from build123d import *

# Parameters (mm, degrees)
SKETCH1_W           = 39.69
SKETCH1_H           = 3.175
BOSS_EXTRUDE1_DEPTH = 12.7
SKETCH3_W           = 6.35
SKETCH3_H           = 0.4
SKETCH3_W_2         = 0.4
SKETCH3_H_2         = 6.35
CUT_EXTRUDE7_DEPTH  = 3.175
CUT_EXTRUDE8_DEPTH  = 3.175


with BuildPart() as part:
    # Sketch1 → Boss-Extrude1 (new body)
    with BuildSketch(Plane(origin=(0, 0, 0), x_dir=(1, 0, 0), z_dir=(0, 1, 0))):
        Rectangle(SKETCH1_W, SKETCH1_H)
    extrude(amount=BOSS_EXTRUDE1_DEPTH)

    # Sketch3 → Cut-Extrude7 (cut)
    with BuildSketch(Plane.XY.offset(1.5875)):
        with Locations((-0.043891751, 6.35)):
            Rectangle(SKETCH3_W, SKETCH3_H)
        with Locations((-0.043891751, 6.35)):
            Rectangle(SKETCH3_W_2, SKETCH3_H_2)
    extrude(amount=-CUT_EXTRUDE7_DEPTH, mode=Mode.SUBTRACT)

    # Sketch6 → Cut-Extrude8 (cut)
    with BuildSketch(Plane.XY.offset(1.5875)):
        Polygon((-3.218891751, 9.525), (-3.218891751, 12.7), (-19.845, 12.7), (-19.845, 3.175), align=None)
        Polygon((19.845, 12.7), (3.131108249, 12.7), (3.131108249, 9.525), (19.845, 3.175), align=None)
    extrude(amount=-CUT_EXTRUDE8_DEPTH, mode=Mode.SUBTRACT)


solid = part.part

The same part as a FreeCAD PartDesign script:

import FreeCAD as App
import Part
import Sketcher

V = App.Vector
Q = App.Units.Quantity


def add_polygon(sketch, points):
    """Adds a closed chain of lines whose ends are joined by coincident constraints."""
    first, n = sketch.GeometryCount, len(points)
    for a, b in zip(points, points[1:] + points[:1]):
        sketch.addGeometry(Part.LineSegment(App.Vector(*a, 0), App.Vector(*b, 0)), False)
    for i in range(n):
        sketch.addConstraint(Sketcher.Constraint("Coincident", first + i, 2, first + (i + 1) % n, 1))

doc = App.newDocument("Part")
body = doc.addObject("PartDesign::Body", "Body")

# Sketch on XZ plane
sketch1 = body.newObject("Sketcher::SketchObject", "Sketch")
sketch1.AttachmentSupport = (doc.getObject("XZ_Plane"), [""])
sketch1.MapMode = "FlatFace"
add_polygon(sketch1, [(-19.845, -1.5875), (-19.845, 1.5875), (19.845, 1.5875), (19.845, -1.5875)])  # lines 0-3
sketch1.addConstraint([
    Sketcher.Constraint("Vertical", 0),
    Sketcher.Constraint("Horizontal", 1),
    Sketcher.Constraint("Vertical", 2),
    Sketcher.Constraint("Horizontal", 3),
    Sketcher.Constraint("Symmetric", 0, 2, 2, 2, -1, 1),
    Sketcher.Constraint("DistanceY", 0, 1, 0, 2, Q("0.125 in")),
    Sketcher.Constraint("DistanceX", 1, 1, 1, 2, Q("39.69 mm")),
])
pad1 = body.newObject("PartDesign::Pad", "Pad")
pad1.Profile = sketch1
pad1.Length = Q("0.5 in")
pad1.Reversed = True

# Sketch on XY plane
sketch2 = body.newObject("Sketcher::SketchObject", "Sketch001")
sketch2.AttachmentSupport = (doc.getObject("XY_Plane"), [""])
sketch2.MapMode = "FlatFace"
sketch2.AttachmentOffset = App.Placement(V(0, 0, 0.0625 * 25.4), App.Rotation())
add_polygon(sketch2, [(-3.218892, 6.55), (-3.218892, 6.15), (-0.243892, 6.15), (-0.243892, 3.175), (0.156108, 3.175), (0.156108, 6.15), (3.131108, 6.15), (3.131108, 6.55), (0.156108, 6.55), (0.156108, 9.525), (-0.243892, 9.525), (-0.243892, 6.55)])  # lines 0-11
sketch2.addConstraint([
    Sketcher.Constraint("Vertical", 0),
    Sketcher.Constraint("Horizontal", 1),
    Sketcher.Constraint("Vertical", 2),
    Sketcher.Constraint("Horizontal", 3),
    Sketcher.Constraint("Vertical", 4),
    Sketcher.Constraint("Horizontal", 5),
    Sketcher.Constraint("Vertical", 6),
    Sketcher.Constraint("Horizontal", 7),
    Sketcher.Constraint("Vertical", 8),
    Sketcher.Constraint("Horizontal", 9),
    Sketcher.Constraint("Vertical", 10),
    Sketcher.Constraint("Horizontal", 11),
    Sketcher.Constraint("Horizontal", 1, 2, 4, 2),
    Sketcher.Constraint("Horizontal", 7, 2, 10, 2),
    Sketcher.Constraint("Vertical", 4, 2, 7, 2),
    Sketcher.Constraint("Vertical", 2, 2, 9, 2),
    Sketcher.Constraint("Equal", 1, 5),
    Sketcher.Constraint("Equal", 9, 0),
    Sketcher.Constraint("Equal", 11, 2),
    Sketcher.Constraint("Equal", 4, 8),
    Sketcher.Constraint("DistanceX", 0, 2, 5, 2, Q("0.25 in")),
    Sketcher.Constraint("DistanceY", -1, 1, 2, 2, Q("0.125 in")),
    Sketcher.Constraint("DistanceX", 1, 1, 1, 2, Q("2.975 mm")),
    Sketcher.Constraint("DistanceX", 0, 2, -1, 1, Q("3.218892 mm")),
])
pocket1 = body.newObject("PartDesign::Pocket", "Pocket")
pocket1.Profile = sketch2
pocket1.Length = Q("0.125 in")

# Sketch on XY plane
sketch3 = body.newObject("Sketcher::SketchObject", "Sketch002")
sketch3.AttachmentSupport = (doc.getObject("XY_Plane"), [""])
sketch3.MapMode = "FlatFace"
sketch3.AttachmentOffset = App.Placement(V(0, 0, 0.0625 * 25.4), App.Rotation())
add_polygon(sketch3, [(-3.218892, 9.525), (-3.218892, 12.7), (-19.845, 12.7), (-19.845, 3.175)])  # lines 0-3
add_polygon(sketch3, [(19.845, 12.7), (3.131108, 12.7), (3.131108, 9.525), (19.845, 3.175)])  # lines 4-7
sketch3.addConstraint([
    Sketcher.Constraint("Vertical", 0),
    Sketcher.Constraint("Horizontal", 1),
    Sketcher.Constraint("Vertical", 2),
    Sketcher.Constraint("Horizontal", 4),
    Sketcher.Constraint("Vertical", 5),
    Sketcher.Constraint("Vertical", 7),
    Sketcher.Constraint("Symmetric", 2, 2, 6, 2, -2),
    Sketcher.Constraint("Horizontal", 1, 2, 4, 2),
    Sketcher.Constraint("Horizontal", 3, 2, 5, 2),
    Sketcher.Constraint("DistanceY", -1, 1, 0, 2, Q("0.5 in")),
    Sketcher.Constraint("DistanceY", 0, 1, 0, 2, Q("0.125 in")),
    Sketcher.Constraint("DistanceY", 2, 2, 2, 1, Q("0.375 in")),
    Sketcher.Constraint("DistanceX", 0, 2, 4, 2, Q("0.25 in")),
    Sketcher.Constraint("DistanceX", 1, 2, 1, 1, Q("16.626108 mm")),
    Sketcher.Constraint("DistanceX", 4, 2, 4, 1, Q("16.713892 mm")),
])
pocket2 = body.newObject("PartDesign::Pocket", "Pocket001")
pocket2.Profile = sketch3
pocket2.Length = Q("0.125 in")

doc.recompute()
